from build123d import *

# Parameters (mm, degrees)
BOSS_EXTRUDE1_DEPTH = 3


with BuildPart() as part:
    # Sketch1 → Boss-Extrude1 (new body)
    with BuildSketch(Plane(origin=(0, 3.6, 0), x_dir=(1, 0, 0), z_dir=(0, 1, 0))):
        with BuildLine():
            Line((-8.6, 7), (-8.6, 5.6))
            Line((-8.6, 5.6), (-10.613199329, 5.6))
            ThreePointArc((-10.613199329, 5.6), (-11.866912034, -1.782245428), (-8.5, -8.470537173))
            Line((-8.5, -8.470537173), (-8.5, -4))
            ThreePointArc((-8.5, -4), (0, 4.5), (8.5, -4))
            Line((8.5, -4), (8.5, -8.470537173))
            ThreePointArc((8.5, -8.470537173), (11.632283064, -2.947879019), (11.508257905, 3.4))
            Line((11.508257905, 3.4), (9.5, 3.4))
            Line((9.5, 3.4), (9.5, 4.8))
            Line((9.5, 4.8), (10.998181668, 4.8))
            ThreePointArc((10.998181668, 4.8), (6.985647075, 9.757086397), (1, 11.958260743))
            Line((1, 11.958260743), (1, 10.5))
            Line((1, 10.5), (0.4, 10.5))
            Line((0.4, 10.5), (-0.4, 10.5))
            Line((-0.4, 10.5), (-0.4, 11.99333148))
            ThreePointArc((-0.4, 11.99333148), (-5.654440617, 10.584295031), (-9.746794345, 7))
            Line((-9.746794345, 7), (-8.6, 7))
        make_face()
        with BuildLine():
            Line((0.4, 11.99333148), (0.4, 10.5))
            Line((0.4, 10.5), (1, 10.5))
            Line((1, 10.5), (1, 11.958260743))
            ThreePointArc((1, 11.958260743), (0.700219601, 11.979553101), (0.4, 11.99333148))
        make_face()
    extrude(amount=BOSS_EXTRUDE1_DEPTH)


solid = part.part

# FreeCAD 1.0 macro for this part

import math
import FreeCAD as App
import Part
import Sketcher
from FreeCAD import Vector
Q = App.Units.Quantity

doc = App.newDocument("Part")
body = doc.addObject("PartDesign::Body", "Body")

sketch1 = doc.addObject("Sketcher::SketchObject", "Sketch")
body.addObject(sketch1)
sketch1.AttachmentSupport = (doc.XZ_Plane, [""])
sketch1.MapMode = "FlatFace"
sketch1.AttachmentOffset = App.Placement(Vector(0, 0, -3.6), App.Rotation())
sketch1.addGeometry([
    Part.LineSegment(Vector(-8.6, -7, 0), Vector(-8.6, -5.6, 0)),
    Part.LineSegment(Vector(-8.6, -5.6, 0), Vector(-10.6, -5.6, 0)),
    Part.ArcOfCircle(Part.Circle(Vector(0, 0, 0), Vector(0, 0, 1), 12), math.radians(135), math.radians(208)),
    Part.LineSegment(Vector(-8.5, 8.5, 0), Vector(-8.5, 4, 0)),
    Part.ArcOfCircle(Part.Circle(Vector(0, 4, 0), Vector(0, 0, 1), 8.5), math.radians(180), math.radians(360)),
    Part.LineSegment(Vector(8.5, 4, 0), Vector(8.5, 8.5, 0)),
    Part.ArcOfCircle(Part.Circle(Vector(0, 0, 0), Vector(0, 0, 1), 12), math.radians(-16), math.radians(45)),
    Part.LineSegment(Vector(11.5, -3.4, 0), Vector(9.5, -3.4, 0)),
    Part.LineSegment(Vector(9.5, -3.4, 0), Vector(9.5, -4.8, 0)),
    Part.LineSegment(Vector(9.5, -4.8, 0), Vector(11, -4.8, 0)),
    Part.ArcOfCircle(Part.Circle(Vector(0, 0, 0), Vector(0, 0, 1), 12), math.radians(-85), math.radians(-24)),
    Part.ArcOfCircle(Part.Circle(Vector(0, 0, 0), Vector(0, 0, 1), 12), math.radians(-88.09), math.radians(-85.22)),
    Part.LineSegment(Vector(0.4, -12, 0), Vector(0.4, -10.5, 0)),
    Part.LineSegment(Vector(0.4, -10.5, 0), Vector(-0.4, -10.5, 0)),
    Part.LineSegment(Vector(-0.4, -10.5, 0), Vector(-0.4, -12, 0)),
    Part.ArcOfCircle(Part.Circle(Vector(0, 0, 0), Vector(0, 0, 1), 12), math.radians(-144), math.radians(-92)),
    Part.LineSegment(Vector(-9.7, -7, 0), Vector(-8.6, -7, 0)),
], False)
sketch1.addConstraint([
    Sketcher.Constraint("Coincident", 0, 2, 1, 1),
    Sketcher.Constraint("Coincident", 1, 2, 2, 2),
    Sketcher.Constraint("Coincident", 2, 1, 3, 1),
    Sketcher.Constraint("Tangent", 3, 2, 4, 1),
    Sketcher.Constraint("Tangent", 4, 2, 5, 1),
    Sketcher.Constraint("Coincident", 5, 2, 6, 2),
    Sketcher.Constraint("Coincident", 6, 1, 7, 1),
    Sketcher.Constraint("Coincident", 7, 2, 8, 1),
    Sketcher.Constraint("Coincident", 8, 2, 9, 1),
    Sketcher.Constraint("Coincident", 9, 2, 10, 2),
    Sketcher.Constraint("Tangent", 10, 1, 11, 2),
    Sketcher.Constraint("Coincident", 11, 1, 12, 1),
    Sketcher.Constraint("Coincident", 12, 2, 13, 1),
    Sketcher.Constraint("Coincident", 13, 2, 14, 1),
    Sketcher.Constraint("Coincident", 14, 2, 15, 2),
    Sketcher.Constraint("Coincident", 15, 1, 16, 1),
    Sketcher.Constraint("Coincident", 16, 2, 0, 1),
    Sketcher.Constraint("Vertical", 0),
    Sketcher.Constraint("Horizontal", 1),
    Sketcher.Constraint("Vertical", 3),
    Sketcher.Constraint("Vertical", 5),
    Sketcher.Constraint("Horizontal", 7),
    Sketcher.Constraint("Vertical", 8),
    Sketcher.Constraint("Horizontal", 9),
    Sketcher.Constraint("Vertical", 12),
    Sketcher.Constraint("Horizontal", 13),
    Sketcher.Constraint("Vertical", 14),
    Sketcher.Constraint("Horizontal", 16),
    Sketcher.Constraint("Coincident", 2, 3, -1, 1),
    Sketcher.Constraint("Coincident", 6, 3, -1, 1),
    Sketcher.Constraint("Coincident", 10, 3, -1, 1),
    Sketcher.Constraint("Coincident", 15, 3, -1, 1),
    Sketcher.Constraint("Equal", 2, 6),
    Sketcher.Constraint("Equal", 6, 10),
    Sketcher.Constraint("Equal", 10, 11),
    Sketcher.Constraint("Equal", 11, 15),
    Sketcher.Constraint("PointOnObject", 4, 3, -2),
    Sketcher.Constraint("Horizontal", 11, 1, 14, 2),
    Sketcher.Constraint("Equal", 0, 8),
    Sketcher.Constraint("Radius", 2, Q("12 mm")),
    Sketcher.Constraint("Radius", 4, Q("8.5 mm")),
    Sketcher.Constraint("DistanceX", 13, 2, 13, 1, Q("0.8 mm")),
    Sketcher.Constraint("DistanceY", 0, 1, 0, 2, Q("1.4 mm")),
    Sketcher.Constraint("DistanceY", -1, 1, 4, 3, Q("4 mm")),
    Sketcher.Constraint("DistanceX", -1, 1, 10, 1, Q("1 mm")),
    Sketcher.Constraint("DistanceY", 15, 1, -1, 1, Q("7 mm")),
    Sketcher.Constraint("DistanceX", 4, 2, 7, 2, Q("1 mm")),
    Sketcher.Constraint("DistanceX", 0, 2, 11, 1, Q("9 mm")),
    Sketcher.Constraint("DistanceY", 6, 1, -1, 1, Q("3.4 mm")),
    Sketcher.Constraint("DistanceY", 12, 2, -1, 1, Q("10.5 mm")),
])
pad1 = doc.addObject("PartDesign::Pad", "Pad")
body.addObject(pad1)
pad1.Profile = sketch1
pad1.Length = 3
pad1.Reversed = True

doc.recompute()
